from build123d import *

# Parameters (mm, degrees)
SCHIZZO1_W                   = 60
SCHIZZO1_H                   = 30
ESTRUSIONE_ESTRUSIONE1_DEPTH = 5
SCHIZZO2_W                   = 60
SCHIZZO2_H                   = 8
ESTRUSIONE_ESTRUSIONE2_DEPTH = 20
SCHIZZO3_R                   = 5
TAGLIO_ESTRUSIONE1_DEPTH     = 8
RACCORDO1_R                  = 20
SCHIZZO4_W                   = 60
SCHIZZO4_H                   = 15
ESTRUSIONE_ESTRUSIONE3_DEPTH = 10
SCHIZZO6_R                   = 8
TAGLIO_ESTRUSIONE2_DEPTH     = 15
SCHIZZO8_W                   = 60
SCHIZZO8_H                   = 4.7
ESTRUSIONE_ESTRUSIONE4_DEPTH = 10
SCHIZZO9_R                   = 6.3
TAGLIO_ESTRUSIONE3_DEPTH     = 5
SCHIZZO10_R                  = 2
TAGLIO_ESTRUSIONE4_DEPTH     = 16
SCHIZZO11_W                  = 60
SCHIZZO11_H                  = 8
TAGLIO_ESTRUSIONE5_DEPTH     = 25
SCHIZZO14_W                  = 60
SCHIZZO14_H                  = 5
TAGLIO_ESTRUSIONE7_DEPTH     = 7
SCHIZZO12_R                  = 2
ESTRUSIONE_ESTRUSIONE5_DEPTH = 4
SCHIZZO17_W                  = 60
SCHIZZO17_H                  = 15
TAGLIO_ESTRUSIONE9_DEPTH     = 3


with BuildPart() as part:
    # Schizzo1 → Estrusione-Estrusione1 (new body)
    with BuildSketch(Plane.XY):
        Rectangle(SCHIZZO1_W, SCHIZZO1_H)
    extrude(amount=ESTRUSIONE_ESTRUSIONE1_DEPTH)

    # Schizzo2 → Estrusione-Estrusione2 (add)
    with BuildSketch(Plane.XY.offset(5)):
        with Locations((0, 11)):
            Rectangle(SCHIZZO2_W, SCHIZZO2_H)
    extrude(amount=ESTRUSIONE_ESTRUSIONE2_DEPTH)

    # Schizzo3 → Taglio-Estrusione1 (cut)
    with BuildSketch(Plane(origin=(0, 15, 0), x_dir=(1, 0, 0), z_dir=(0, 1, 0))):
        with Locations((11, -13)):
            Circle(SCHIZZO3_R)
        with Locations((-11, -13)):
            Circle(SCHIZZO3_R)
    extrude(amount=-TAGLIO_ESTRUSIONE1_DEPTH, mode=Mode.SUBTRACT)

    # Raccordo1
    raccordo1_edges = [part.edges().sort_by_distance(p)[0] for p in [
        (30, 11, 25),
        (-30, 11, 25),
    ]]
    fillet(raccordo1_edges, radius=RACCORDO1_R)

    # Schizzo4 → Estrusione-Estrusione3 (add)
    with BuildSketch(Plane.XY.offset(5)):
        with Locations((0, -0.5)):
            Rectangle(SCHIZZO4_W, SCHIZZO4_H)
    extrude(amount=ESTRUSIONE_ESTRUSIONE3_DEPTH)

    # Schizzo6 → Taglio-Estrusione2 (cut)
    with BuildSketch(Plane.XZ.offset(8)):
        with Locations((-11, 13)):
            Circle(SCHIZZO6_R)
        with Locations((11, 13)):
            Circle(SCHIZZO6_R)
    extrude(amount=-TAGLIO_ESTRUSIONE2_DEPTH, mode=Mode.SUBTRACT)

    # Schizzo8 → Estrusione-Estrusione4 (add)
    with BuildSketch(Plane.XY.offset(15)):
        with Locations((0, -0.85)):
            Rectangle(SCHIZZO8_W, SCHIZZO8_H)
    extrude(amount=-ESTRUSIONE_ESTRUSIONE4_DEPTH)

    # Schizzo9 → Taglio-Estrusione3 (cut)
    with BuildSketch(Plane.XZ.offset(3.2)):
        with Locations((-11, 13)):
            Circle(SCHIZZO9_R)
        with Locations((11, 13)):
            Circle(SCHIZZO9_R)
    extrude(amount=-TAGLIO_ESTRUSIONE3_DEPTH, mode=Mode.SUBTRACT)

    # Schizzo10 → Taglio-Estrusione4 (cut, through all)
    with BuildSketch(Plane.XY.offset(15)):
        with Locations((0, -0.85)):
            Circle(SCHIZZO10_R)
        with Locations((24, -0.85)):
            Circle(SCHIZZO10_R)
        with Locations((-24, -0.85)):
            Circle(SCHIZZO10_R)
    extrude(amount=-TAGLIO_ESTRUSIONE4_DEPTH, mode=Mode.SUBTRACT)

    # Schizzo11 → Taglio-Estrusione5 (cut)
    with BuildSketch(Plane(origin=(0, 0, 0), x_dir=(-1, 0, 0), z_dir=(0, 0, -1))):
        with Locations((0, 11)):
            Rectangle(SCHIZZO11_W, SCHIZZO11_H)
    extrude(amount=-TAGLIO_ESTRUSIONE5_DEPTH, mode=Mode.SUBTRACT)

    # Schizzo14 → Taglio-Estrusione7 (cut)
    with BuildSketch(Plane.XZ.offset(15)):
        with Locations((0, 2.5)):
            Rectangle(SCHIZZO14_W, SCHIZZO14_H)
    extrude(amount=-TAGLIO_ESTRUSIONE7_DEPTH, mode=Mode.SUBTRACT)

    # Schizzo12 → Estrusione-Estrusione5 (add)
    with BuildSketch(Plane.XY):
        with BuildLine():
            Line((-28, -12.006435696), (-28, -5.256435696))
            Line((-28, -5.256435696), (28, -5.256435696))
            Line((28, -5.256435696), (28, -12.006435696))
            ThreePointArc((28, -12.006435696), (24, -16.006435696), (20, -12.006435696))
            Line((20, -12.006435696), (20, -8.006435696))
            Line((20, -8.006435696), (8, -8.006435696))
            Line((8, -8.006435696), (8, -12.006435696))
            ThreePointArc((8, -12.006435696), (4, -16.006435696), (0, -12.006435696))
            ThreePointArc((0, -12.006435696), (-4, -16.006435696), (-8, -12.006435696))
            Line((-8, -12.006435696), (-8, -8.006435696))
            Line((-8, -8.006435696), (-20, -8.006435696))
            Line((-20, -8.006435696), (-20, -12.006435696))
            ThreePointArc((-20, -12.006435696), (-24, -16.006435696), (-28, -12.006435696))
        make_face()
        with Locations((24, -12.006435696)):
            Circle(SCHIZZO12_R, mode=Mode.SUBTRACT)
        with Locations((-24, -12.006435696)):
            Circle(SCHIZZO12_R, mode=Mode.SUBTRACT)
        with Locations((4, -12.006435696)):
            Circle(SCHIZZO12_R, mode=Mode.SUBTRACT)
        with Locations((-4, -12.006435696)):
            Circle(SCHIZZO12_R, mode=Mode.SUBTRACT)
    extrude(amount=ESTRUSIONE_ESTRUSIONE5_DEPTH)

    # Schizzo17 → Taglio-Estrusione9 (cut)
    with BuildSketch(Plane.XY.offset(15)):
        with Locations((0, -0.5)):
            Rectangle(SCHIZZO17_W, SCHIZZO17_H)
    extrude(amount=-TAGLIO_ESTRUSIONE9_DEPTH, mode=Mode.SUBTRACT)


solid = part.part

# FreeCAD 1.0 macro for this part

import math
import FreeCAD as App
import Part
import Sketcher
from FreeCAD import Vector
Q = App.Units.Quantity


def edges_at(feature, points):
    """Names of the edges that pass closest to the given points."""
    edges = feature.Shape.Edges
    near = lambda p: min(range(len(edges)), key=lambda i: edges[i].distToShape(Part.Vertex(*p))[0])
    return sorted({f"Edge{near(p) + 1}" for p in points})


def add_polygon(sketch, points):
    """Adds a closed chain of lines whose ends are joined by coincident constraints."""
    first, n = sketch.GeometryCount, len(points)
    for a, b in zip(points, points[1:] + points[:1]):
        sketch.addGeometry(Part.LineSegment(App.Vector(*a, 0), App.Vector(*b, 0)), False)
    for i in range(n):
        sketch.addConstraint(Sketcher.Constraint("Coincident", first + i, 2, first + (i + 1) % n, 1))

doc = App.newDocument("Part")
body = doc.addObject("PartDesign::Body", "Body")

sketch1 = body.newObject("Sketcher::SketchObject", "Sketch")
sketch1.AttachmentSupport = (doc.getObject("XY_Plane"), [""])
sketch1.MapMode = "FlatFace"
add_polygon(sketch1, [(-30, 15), (-30, -15), (30, -15), (30, 15)])
sketch1.addConstraint(Sketcher.Constraint("Vertical", 0))
sketch1.addConstraint(Sketcher.Constraint("Horizontal", 1))
sketch1.addConstraint(Sketcher.Constraint("Vertical", 2))
sketch1.addConstraint(Sketcher.Constraint("Horizontal", 3))
sketch1.addConstraint(Sketcher.Constraint("Symmetric", 0, 2, 2, 2, -1, 1))
sketch1.addConstraint(Sketcher.Constraint("DistanceX", 1, 1, 1, 2, Q("60 mm")))
sketch1.addConstraint(Sketcher.Constraint("DistanceY", 0, 2, 0, 1, Q("30 mm")))
pad1 = body.newObject("PartDesign::Pad", "Pad")
pad1.Profile = sketch1
pad1.Length = 5

sketch2 = body.newObject("Sketcher::SketchObject", "Sketch001")
sketch2.AttachmentSupport = (doc.getObject("XY_Plane"), [""])
sketch2.MapMode = "FlatFace"
sketch2.AttachmentOffset = App.Placement(Vector(0, 0, 5), App.Rotation())
add_polygon(sketch2, [(-30, 15), (-30, 7), (30, 7), (30, 15)])
sketch2.addConstraint(Sketcher.Constraint("Vertical", 0))
sketch2.addConstraint(Sketcher.Constraint("Horizontal", 1))
sketch2.addConstraint(Sketcher.Constraint("Vertical", 2))
sketch2.addConstraint(Sketcher.Constraint("Horizontal", 3))
sketch2.addConstraint(Sketcher.Constraint("DistanceX", 1, 1, 1, 2, Q("60 mm")))
sketch2.addConstraint(Sketcher.Constraint("DistanceY", 0, 2, 0, 1, Q("8 mm")))
sketch2.addConstraint(Sketcher.Constraint("DistanceX", 0, 2, -1, 1, Q("30 mm")))
sketch2.addConstraint(Sketcher.Constraint("DistanceY", -1, 1, 0, 2, Q("7 mm")))
pad2 = body.newObject("PartDesign::Pad", "Pad001")
pad2.Profile = sketch2
pad2.Length = 20

sketch3 = body.newObject("Sketcher::SketchObject", "Sketch002")
sketch3.AttachmentSupport = (doc.getObject("XZ_Plane"), [""])
sketch3.MapMode = "FlatFace"
sketch3.AttachmentOffset = App.Placement(Vector(0, 0, -15), App.Rotation())
sketch3.addGeometry(Part.Circle(Vector(11, 13, 0), Vector(0, 0, 1), 5), False)
sketch3.addGeometry(Part.Circle(Vector(-11, 13, 0), Vector(0, 0, 1), 5), False)
sketch3.addConstraint(Sketcher.Constraint("Equal", 0, 1))
sketch3.addConstraint(Sketcher.Constraint("Symmetric", 0, 3, 1, 3, -2))
sketch3.addConstraint(Sketcher.Constraint("Diameter", 0, Q("10 mm")))
sketch3.addConstraint(Sketcher.Constraint("DistanceX", -1, 1, 0, 3, Q("11 mm")))
sketch3.addConstraint(Sketcher.Constraint("DistanceY", -1, 1, 0, 3, Q("13 mm")))
pocket1 = body.newObject("PartDesign::Pocket", "Pocket")
pocket1.Profile = sketch3
pocket1.Length = 8
pocket1.Reversed = True
doc.recompute()

fillet = body.newObject("PartDesign::Fillet", "Fillet")
fillet.Base = (pocket1, edges_at(pocket1, [(30, 11, 25), (-30, 11, 25)]))
fillet.Radius = 20

sketch4 = body.newObject("Sketcher::SketchObject", "Sketch003")
sketch4.AttachmentSupport = (doc.getObject("XY_Plane"), [""])
sketch4.MapMode = "FlatFace"
sketch4.AttachmentOffset = App.Placement(Vector(0, 0, 5), App.Rotation())
add_polygon(sketch4, [(-30, 7), (-30, -8), (30, -8), (30, 7)])
sketch4.addConstraint(Sketcher.Constraint("Vertical", 0))
sketch4.addConstraint(Sketcher.Constraint("Horizontal", 1))
sketch4.addConstraint(Sketcher.Constraint("Vertical", 2))
sketch4.addConstraint(Sketcher.Constraint("Horizontal", 3))
sketch4.addConstraint(Sketcher.Constraint("DistanceX", 1, 1, 1, 2, Q("60 mm")))
sketch4.addConstraint(Sketcher.Constraint("DistanceY", 0, 2, 0, 1, Q("15 mm")))
sketch4.addConstraint(Sketcher.Constraint("DistanceX", 0, 2, -1, 1, Q("30 mm")))
sketch4.addConstraint(Sketcher.Constraint("DistanceY", 0, 2, -1, 1, Q("8 mm")))
pad3 = body.newObject("PartDesign::Pad", "Pad002")
pad3.Profile = sketch4
pad3.Length = 10

sketch5 = body.newObject("Sketcher::SketchObject", "Sketch004")
sketch5.AttachmentSupport = (doc.getObject("XZ_Plane"), [""])
sketch5.MapMode = "FlatFace"
sketch5.AttachmentOffset = App.Placement(Vector(0, 0, 8), App.Rotation())
sketch5.addGeometry(Part.Circle(Vector(-11, 13, 0), Vector(0, 0, 1), 8), False)
sketch5.addGeometry(Part.Circle(Vector(11, 13, 0), Vector(0, 0, 1), 8), False)
sketch5.addConstraint(Sketcher.Constraint("Equal", 0, 1))
sketch5.addConstraint(Sketcher.Constraint("Symmetric", 0, 3, 1, 3, -2))
sketch5.addConstraint(Sketcher.Constraint("Diameter", 0, Q("16 mm")))
sketch5.addConstraint(Sketcher.Constraint("DistanceX", 0, 3, -1, 1, Q("11 mm")))
sketch5.addConstraint(Sketcher.Constraint("DistanceY", -1, 1, 0, 3, Q("13 mm")))
pocket2 = body.newObject("PartDesign::Pocket", "Pocket001")
pocket2.Profile = sketch5
pocket2.Length = 15

sketch6 = body.newObject("Sketcher::SketchObject", "Sketch005")
sketch6.AttachmentSupport = (doc.getObject("XY_Plane"), [""])
sketch6.MapMode = "FlatFace"
sketch6.AttachmentOffset = App.Placement(Vector(0, 0, 15), App.Rotation())
add_polygon(sketch6, [(-30, 1.5), (-30, -3.2), (30, -3.2), (30, 1.5)])
sketch6.addConstraint(Sketcher.Constraint("Vertical", 0))
sketch6.addConstraint(Sketcher.Constraint("Horizontal", 1))
sketch6.addConstraint(Sketcher.Constraint("Vertical", 2))
sketch6.addConstraint(Sketcher.Constraint("Horizontal", 3))
sketch6.addConstraint(Sketcher.Constraint("DistanceX", 1, 1, 1, 2, Q("60 mm")))
sketch6.addConstraint(Sketcher.Constraint("DistanceY", 0, 2, 0, 1, Q("4.7 mm")))
sketch6.addConstraint(Sketcher.Constraint("DistanceX", 0, 2, -1, 1, Q("30 mm")))
sketch6.addConstraint(Sketcher.Constraint("DistanceY", 0, 2, -1, 1, Q("3.2 mm")))
pad4 = body.newObject("PartDesign::Pad", "Pad003")
pad4.Profile = sketch6
pad4.Length = 10
pad4.Reversed = True

sketch7 = body.newObject("Sketcher::SketchObject", "Sketch006")
sketch7.AttachmentSupport = (doc.getObject("XZ_Plane"), [""])
sketch7.MapMode = "FlatFace"
sketch7.AttachmentOffset = App.Placement(Vector(0, 0, 3.2), App.Rotation())
sketch7.addGeometry(Part.Circle(Vector(-11, 13, 0), Vector(0, 0, 1), 6.3), False)
sketch7.addGeometry(Part.Circle(Vector(11, 13, 0), Vector(0, 0, 1), 6.3), False)
sketch7.addConstraint(Sketcher.Constraint("Equal", 0, 1))
sketch7.addConstraint(Sketcher.Constraint("Symmetric", 0, 3, 1, 3, -2))
sketch7.addConstraint(Sketcher.Constraint("Diameter", 0, Q("12.6 mm")))
sketch7.addConstraint(Sketcher.Constraint("DistanceX", 0, 3, -1, 1, Q("11 mm")))
sketch7.addConstraint(Sketcher.Constraint("DistanceY", -1, 1, 0, 3, Q("13 mm")))
pocket3 = body.newObject("PartDesign::Pocket", "Pocket002")
pocket3.Profile = sketch7
pocket3.Length = 5

sketch8 = body.newObject("Sketcher::SketchObject", "Sketch007")
sketch8.AttachmentSupport = (doc.getObject("XY_Plane"), [""])
sketch8.MapMode = "FlatFace"
sketch8.AttachmentOffset = App.Placement(Vector(0, 0, 15), App.Rotation())
sketch8.addGeometry(Part.Circle(Vector(0, -0.85, 0), Vector(0, 0, 1), 2), False)
sketch8.addGeometry(Part.Circle(Vector(24, -0.85, 0), Vector(0, 0, 1), 2), False)
sketch8.addGeometry(Part.Circle(Vector(-24, -0.85, 0), Vector(0, 0, 1), 2), False)
sketch8.addConstraint(Sketcher.Constraint("Equal", 0, 1))
sketch8.addConstraint(Sketcher.Constraint("Equal", 1, 2))
sketch8.addConstraint(Sketcher.Constraint("Symmetric", 1, 3, 2, 3, -2))
sketch8.addConstraint(Sketcher.Constraint("PointOnObject", 0, 3, -2))
sketch8.addConstraint(Sketcher.Constraint("Horizontal", 0, 3, 1, 3))
sketch8.addConstraint(Sketcher.Constraint("Diameter", 0, Q("4 mm")))
sketch8.addConstraint(Sketcher.Constraint("DistanceX", -1, 1, 1, 3, Q("24 mm")))
sketch8.addConstraint(Sketcher.Constraint("DistanceY", 0, 3, -1, 1, Q("0.85 mm")))
pocket4 = body.newObject("PartDesign::Pocket", "Pocket003")
pocket4.Profile = sketch8
pocket4.Type = "ThroughAll"

sketch9 = body.newObject("Sketcher::SketchObject", "Sketch008")
sketch9.AttachmentSupport = (doc.getObject("XY_Plane"), [""])
sketch9.MapMode = "FlatFace"
add_polygon(sketch9, [(30, 15), (30, 7), (-30, 7), (-30, 15)])
sketch9.addConstraint(Sketcher.Constraint("Vertical", 0))
sketch9.addConstraint(Sketcher.Constraint("Horizontal", 1))
sketch9.addConstraint(Sketcher.Constraint("Vertical", 2))
sketch9.addConstraint(Sketcher.Constraint("Horizontal", 3))
sketch9.addConstraint(Sketcher.Constraint("DistanceX", 1, 2, 1, 1, Q("60 mm")))
sketch9.addConstraint(Sketcher.Constraint("DistanceY", 0, 2, 0, 1, Q("8 mm")))
sketch9.addConstraint(Sketcher.Constraint("DistanceX", -1, 1, 0, 2, Q("30 mm")))
sketch9.addConstraint(Sketcher.Constraint("DistanceY", -1, 1, 0, 2, Q("7 mm")))
pocket5 = body.newObject("PartDesign::Pocket", "Pocket004")
pocket5.Profile = sketch9
pocket5.Length = 25
pocket5.Reversed = True

sketch10 = body.newObject("Sketcher::SketchObject", "Sketch009")
sketch10.AttachmentSupport = (doc.getObject("XZ_Plane"), [""])
sketch10.MapMode = "FlatFace"
sketch10.AttachmentOffset = App.Placement(Vector(0, 0, 15), App.Rotation())
add_polygon(sketch10, [(-30, 5), (-30, 0), (30, 0), (30, 5)])
sketch10.addConstraint(Sketcher.Constraint("Vertical", 0))
sketch10.addConstraint(Sketcher.Constraint("Horizontal", 1))
sketch10.addConstraint(Sketcher.Constraint("Vertical", 2))
sketch10.addConstraint(Sketcher.Constraint("Horizontal", 3))
sketch10.addConstraint(Sketcher.Constraint("Symmetric", 0, 2, 1, 2, -1, 1))
sketch10.addConstraint(Sketcher.Constraint("DistanceX", 1, 1, 1, 2, Q("60 mm")))
sketch10.addConstraint(Sketcher.Constraint("DistanceY", 0, 2, 0, 1, Q("5 mm")))
pocket6 = body.newObject("PartDesign::Pocket", "Pocket005")
pocket6.Profile = sketch10
pocket6.Length = 7

sketch11 = body.newObject("Sketcher::SketchObject", "Sketch010")
sketch11.AttachmentSupport = (doc.getObject("XY_Plane"), [""])
sketch11.MapMode = "FlatFace"
sketch11.addGeometry(Part.LineSegment(Vector(-28, -5.256436, 0), Vector(-28, -12.006436, 0)), False)
sketch11.addGeometry(Part.ArcOfCircle(Part.Circle(Vector(-24, -12.006436, 0), Vector(0, 0, 1), 4), math.radians(180), math.radians(360)), False)
sketch11.addGeometry(Part.LineSegment(Vector(-20, -12.006436, 0), Vector(-20, -8.006436, 0)), False)
sketch11.addGeometry(Part.LineSegment(Vector(-20, -8.006436, 0), Vector(-8, -8.006436, 0)), False)
sketch11.addGeometry(Part.LineSegment(Vector(-8, -8.006436, 0), Vector(-8, -12.006436, 0)), False)
sketch11.addGeometry(Part.ArcOfCircle(Part.Circle(Vector(-4, -12.006436, 0), Vector(0, 0, 1), 4), math.radians(180), math.radians(360)), False)
sketch11.addGeometry(Part.ArcOfCircle(Part.Circle(Vector(4, -12.006436, 0), Vector(0, 0, 1), 4), math.radians(180), math.radians(360)), False)
sketch11.addGeometry(Part.LineSegment(Vector(8, -12.006436, 0), Vector(8, -8.006436, 0)), False)
sketch11.addGeometry(Part.LineSegment(Vector(8, -8.006436, 0), Vector(20, -8.006436, 0)), False)
sketch11.addGeometry(Part.LineSegment(Vector(20, -8.006436, 0), Vector(20, -12.006436, 0)), False)
sketch11.addGeometry(Part.ArcOfCircle(Part.Circle(Vector(24, -12.006436, 0), Vector(0, 0, 1), 4), math.radians(180), math.radians(360)), False)
sketch11.addGeometry(Part.LineSegment(Vector(28, -12.006436, 0), Vector(28, -5.256436, 0)), False)
sketch11.addGeometry(Part.LineSegment(Vector(28, -5.256436, 0), Vector(-28, -5.256436, 0)), False)
sketch11.addGeometry(Part.Circle(Vector(24, -12.006436, 0), Vector(0, 0, 1), 2), False)
sketch11.addGeometry(Part.Circle(Vector(4, -12.006436, 0), Vector(0, 0, 1), 2), False)
sketch11.addGeometry(Part.Circle(Vector(-4, -12.006436, 0), Vector(0, 0, 1), 2), False)
sketch11.addGeometry(Part.Circle(Vector(-24, -12.006436, 0), Vector(0, 0, 1), 2), False)
sketch11.addConstraint(Sketcher.Constraint("Tangent", 0, 2, 1, 1))
sketch11.addConstraint(Sketcher.Constraint("Tangent", 1, 2, 2, 1))
sketch11.addConstraint(Sketcher.Constraint("Coincident", 2, 2, 3, 1))
sketch11.addConstraint(Sketcher.Constraint("Coincident", 3, 2, 4, 1))
sketch11.addConstraint(Sketcher.Constraint("Tangent", 4, 2, 5, 1))
sketch11.addConstraint(Sketcher.Constraint("Tangent", 5, 2, 6, 1))
sketch11.addConstraint(Sketcher.Constraint("Tangent", 6, 2, 7, 1))
sketch11.addConstraint(Sketcher.Constraint("Coincident", 7, 2, 8, 1))
sketch11.addConstraint(Sketcher.Constraint("Coincident", 8, 2, 9, 1))
sketch11.addConstraint(Sketcher.Constraint("Tangent", 9, 2, 10, 1))
sketch11.addConstraint(Sketcher.Constraint("Tangent", 10, 2, 11, 1))
sketch11.addConstraint(Sketcher.Constraint("Coincident", 11, 2, 12, 1))
sketch11.addConstraint(Sketcher.Constraint("Coincident", 12, 2, 0, 1))
sketch11.addConstraint(Sketcher.Constraint("Vertical", 0))
sketch11.addConstraint(Sketcher.Constraint("Vertical", 2))
sketch11.addConstraint(Sketcher.Constraint("Horizontal", 3))
sketch11.addConstraint(Sketcher.Constraint("Vertical", 4))
sketch11.addConstraint(Sketcher.Constraint("Vertical", 7))
sketch11.addConstraint(Sketcher.Constraint("Horizontal", 8))
sketch11.addConstraint(Sketcher.Constraint("Vertical", 9))
sketch11.addConstraint(Sketcher.Constraint("Vertical", 11))
sketch11.addConstraint(Sketcher.Constraint("Horizontal", 12))
sketch11.addConstraint(Sketcher.Constraint("Coincident", 13, 3, 10, 3))
sketch11.addConstraint(Sketcher.Constraint("Coincident", 14, 3, 6, 3))
sketch11.addConstraint(Sketcher.Constraint("Coincident", 15, 3, 5, 3))
sketch11.addConstraint(Sketcher.Constraint("Coincident", 16, 3, 1, 3))
sketch11.addConstraint(Sketcher.Constraint("Equal", 1, 5))
sketch11.addConstraint(Sketcher.Constraint("Equal", 5, 6))
sketch11.addConstraint(Sketcher.Constraint("Equal", 6, 10))
sketch11.addConstraint(Sketcher.Constraint("Equal", 13, 14))
sketch11.addConstraint(Sketcher.Constraint("Equal", 14, 15))
sketch11.addConstraint(Sketcher.Constraint("Equal", 15, 16))
sketch11.addConstraint(Sketcher.Constraint("Symmetric", 5, 3, 6, 3, -2))
sketch11.addConstraint(Sketcher.Constraint("Symmetric", 1, 3, 10, 3, -2))
sketch11.addConstraint(Sketcher.Constraint("Horizontal", 1, 3, 5, 3))
sketch11.addConstraint(Sketcher.Constraint("Horizontal", 3, 2, 7, 2))
sketch11.addConstraint(Sketcher.Constraint("Diameter", 13, Q("4 mm")))
sketch11.addConstraint(Sketcher.Constraint("Radius", 1, Q("4 mm")))
sketch11.addConstraint(Sketcher.Constraint("DistanceX", 3, 1, 3, 2, Q("12 mm")))
sketch11.addConstraint(Sketcher.Constraint("DistanceY", 2, 1, 2, 2, Q("4 mm")))
sketch11.addConstraint(Sketcher.Constraint("DistanceY", 0, 2, 0, 1, Q("6.75 mm")))
sketch11.addConstraint(Sketcher.Constraint("DistanceY", 1, 3, -1, 1, Q("12.006436 mm")))
pad5 = body.newObject("PartDesign::Pad", "Pad004")
pad5.Profile = sketch11
pad5.Length = 4

sketch12 = body.newObject("Sketcher::SketchObject", "Sketch011")
sketch12.AttachmentSupport = (doc.getObject("XY_Plane"), [""])
sketch12.MapMode = "FlatFace"
sketch12.AttachmentOffset = App.Placement(Vector(0, 0, 15), App.Rotation())
add_polygon(sketch12, [(-30, 7), (-30, -8), (30, -8), (30, 7)])
sketch12.addConstraint(Sketcher.Constraint("Vertical", 0))
sketch12.addConstraint(Sketcher.Constraint("Horizontal", 1))
sketch12.addConstraint(Sketcher.Constraint("Vertical", 2))
sketch12.addConstraint(Sketcher.Constraint("Horizontal", 3))
sketch12.addConstraint(Sketcher.Constraint("DistanceX", 1, 1, 1, 2, Q("60 mm")))
sketch12.addConstraint(Sketcher.Constraint("DistanceY", 0, 2, 0, 1, Q("15 mm")))
sketch12.addConstraint(Sketcher.Constraint("DistanceX", 0, 2, -1, 1, Q("30 mm")))
sketch12.addConstraint(Sketcher.Constraint("DistanceY", 0, 2, -1, 1, Q("8 mm")))
pocket7 = body.newObject("PartDesign::Pocket", "Pocket006")
pocket7.Profile = sketch12
pocket7.Length = 3

doc.recompute()
